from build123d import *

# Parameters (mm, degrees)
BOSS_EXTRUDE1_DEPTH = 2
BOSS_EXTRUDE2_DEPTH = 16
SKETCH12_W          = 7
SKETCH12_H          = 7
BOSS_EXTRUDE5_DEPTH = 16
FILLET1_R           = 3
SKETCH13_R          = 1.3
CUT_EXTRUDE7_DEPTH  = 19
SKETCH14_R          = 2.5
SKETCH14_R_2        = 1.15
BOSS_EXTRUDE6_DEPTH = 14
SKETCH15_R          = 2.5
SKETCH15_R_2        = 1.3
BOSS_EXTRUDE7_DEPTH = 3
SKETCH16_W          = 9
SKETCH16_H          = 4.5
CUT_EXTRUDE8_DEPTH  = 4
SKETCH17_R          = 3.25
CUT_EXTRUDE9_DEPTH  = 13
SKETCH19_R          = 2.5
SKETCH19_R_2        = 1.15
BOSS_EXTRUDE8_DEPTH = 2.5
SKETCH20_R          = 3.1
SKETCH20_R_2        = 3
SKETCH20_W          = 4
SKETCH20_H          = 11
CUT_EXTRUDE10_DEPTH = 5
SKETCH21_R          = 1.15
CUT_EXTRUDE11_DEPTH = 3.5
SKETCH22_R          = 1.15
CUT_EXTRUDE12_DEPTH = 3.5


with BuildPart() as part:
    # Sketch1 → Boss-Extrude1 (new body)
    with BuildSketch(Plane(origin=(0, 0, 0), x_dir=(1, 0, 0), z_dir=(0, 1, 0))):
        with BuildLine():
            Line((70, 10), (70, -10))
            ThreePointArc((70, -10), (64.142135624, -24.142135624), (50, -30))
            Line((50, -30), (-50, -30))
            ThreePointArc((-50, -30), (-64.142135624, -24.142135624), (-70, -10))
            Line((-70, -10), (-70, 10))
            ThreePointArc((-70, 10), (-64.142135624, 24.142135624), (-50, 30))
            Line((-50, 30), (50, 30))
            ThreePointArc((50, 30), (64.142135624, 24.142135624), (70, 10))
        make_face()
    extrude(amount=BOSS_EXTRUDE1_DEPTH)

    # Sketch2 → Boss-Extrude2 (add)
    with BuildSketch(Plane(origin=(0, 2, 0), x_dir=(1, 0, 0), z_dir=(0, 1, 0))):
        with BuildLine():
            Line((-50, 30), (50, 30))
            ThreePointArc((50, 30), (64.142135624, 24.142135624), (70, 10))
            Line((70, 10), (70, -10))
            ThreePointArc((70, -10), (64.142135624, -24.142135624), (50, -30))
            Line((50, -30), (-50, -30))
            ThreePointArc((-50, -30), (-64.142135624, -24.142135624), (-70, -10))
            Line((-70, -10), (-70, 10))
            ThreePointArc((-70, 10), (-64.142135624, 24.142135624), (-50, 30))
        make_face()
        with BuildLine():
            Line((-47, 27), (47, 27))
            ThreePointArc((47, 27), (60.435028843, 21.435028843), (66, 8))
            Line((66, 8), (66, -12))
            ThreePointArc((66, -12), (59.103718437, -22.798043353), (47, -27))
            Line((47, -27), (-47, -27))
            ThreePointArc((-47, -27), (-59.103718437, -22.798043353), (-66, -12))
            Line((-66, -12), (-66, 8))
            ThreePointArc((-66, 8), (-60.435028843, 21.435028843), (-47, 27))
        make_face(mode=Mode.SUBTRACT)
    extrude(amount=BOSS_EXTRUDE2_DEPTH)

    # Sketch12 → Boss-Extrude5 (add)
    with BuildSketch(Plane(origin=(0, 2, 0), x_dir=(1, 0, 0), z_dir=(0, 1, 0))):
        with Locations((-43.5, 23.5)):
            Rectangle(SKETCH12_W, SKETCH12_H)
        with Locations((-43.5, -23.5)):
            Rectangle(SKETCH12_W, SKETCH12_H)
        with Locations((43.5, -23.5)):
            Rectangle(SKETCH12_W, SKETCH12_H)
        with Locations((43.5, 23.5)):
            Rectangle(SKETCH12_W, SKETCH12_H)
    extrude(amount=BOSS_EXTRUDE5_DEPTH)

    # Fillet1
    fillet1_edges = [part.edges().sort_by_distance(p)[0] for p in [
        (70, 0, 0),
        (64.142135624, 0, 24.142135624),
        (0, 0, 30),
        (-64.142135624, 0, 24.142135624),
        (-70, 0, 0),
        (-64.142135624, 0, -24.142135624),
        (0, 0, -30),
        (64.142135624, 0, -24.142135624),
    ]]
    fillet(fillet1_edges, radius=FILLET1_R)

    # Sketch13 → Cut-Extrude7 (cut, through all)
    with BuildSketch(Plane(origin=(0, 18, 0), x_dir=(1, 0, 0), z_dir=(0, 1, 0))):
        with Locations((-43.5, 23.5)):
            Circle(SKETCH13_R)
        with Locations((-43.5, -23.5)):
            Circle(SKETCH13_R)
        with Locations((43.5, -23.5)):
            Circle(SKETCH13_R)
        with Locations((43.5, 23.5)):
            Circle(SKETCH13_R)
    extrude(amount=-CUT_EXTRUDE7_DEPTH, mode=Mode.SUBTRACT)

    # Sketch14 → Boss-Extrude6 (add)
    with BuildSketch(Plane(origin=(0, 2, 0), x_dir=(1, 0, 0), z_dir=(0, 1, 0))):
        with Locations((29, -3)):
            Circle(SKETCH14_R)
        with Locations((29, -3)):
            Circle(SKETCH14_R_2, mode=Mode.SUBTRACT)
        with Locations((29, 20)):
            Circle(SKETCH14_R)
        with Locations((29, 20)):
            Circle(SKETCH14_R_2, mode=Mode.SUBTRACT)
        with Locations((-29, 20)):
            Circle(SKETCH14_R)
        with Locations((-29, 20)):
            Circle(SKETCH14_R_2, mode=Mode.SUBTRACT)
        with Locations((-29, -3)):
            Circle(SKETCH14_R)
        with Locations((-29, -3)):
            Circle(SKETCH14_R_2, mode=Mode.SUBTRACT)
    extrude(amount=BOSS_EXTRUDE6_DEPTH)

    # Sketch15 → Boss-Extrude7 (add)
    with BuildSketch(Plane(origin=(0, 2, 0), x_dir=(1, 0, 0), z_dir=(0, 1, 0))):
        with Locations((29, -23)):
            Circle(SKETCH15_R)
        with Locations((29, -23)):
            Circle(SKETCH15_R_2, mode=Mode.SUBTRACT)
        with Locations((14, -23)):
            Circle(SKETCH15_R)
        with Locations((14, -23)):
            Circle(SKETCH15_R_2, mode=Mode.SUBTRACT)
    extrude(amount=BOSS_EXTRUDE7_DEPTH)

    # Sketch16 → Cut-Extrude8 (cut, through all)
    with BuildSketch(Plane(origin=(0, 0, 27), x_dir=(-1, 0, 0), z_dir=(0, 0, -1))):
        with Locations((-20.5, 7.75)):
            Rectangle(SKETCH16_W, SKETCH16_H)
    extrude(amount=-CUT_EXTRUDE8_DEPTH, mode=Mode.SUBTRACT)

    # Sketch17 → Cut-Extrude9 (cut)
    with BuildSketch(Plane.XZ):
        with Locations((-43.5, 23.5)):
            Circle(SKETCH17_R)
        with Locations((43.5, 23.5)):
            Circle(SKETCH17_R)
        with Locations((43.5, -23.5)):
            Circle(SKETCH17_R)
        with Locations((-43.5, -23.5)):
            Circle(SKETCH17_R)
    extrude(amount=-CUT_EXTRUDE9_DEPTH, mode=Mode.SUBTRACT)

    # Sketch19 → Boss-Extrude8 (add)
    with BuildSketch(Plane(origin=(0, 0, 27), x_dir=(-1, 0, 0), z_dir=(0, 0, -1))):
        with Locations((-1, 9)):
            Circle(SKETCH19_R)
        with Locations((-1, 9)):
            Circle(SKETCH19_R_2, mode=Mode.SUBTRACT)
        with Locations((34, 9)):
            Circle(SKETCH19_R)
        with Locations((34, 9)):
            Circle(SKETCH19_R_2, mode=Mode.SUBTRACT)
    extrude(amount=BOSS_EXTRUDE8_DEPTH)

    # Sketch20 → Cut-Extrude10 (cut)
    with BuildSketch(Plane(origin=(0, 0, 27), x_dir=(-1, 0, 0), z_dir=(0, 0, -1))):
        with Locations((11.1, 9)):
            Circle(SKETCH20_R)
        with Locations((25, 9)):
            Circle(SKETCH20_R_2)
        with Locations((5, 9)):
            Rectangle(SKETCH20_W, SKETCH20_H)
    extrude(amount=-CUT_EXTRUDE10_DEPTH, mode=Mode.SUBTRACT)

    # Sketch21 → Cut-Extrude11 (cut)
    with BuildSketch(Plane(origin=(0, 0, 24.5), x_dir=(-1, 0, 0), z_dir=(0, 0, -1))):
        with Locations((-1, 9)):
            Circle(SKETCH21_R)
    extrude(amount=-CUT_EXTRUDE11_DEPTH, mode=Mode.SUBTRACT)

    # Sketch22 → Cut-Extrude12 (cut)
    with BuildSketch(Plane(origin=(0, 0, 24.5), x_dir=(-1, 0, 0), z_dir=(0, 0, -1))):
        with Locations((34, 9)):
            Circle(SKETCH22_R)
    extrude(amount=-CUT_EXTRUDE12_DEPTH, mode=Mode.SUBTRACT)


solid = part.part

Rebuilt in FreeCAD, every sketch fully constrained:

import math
import FreeCAD as App
import Part
import Sketcher

V = App.Vector


def edges_at(feature, points):
    """Names of the edges that pass closest to the given points."""
    edges = feature.Shape.Edges
    near = lambda p: min(range(len(edges)), key=lambda i: edges[i].distToShape(Part.Vertex(*p))[0])
    return sorted({f"Edge{near(p) + 1}" for p in points})


def add_polygon(sketch, points):
    """Adds a closed chain of lines whose ends are joined by coincident constraints."""
    first, n = sketch.GeometryCount, len(points)
    for a, b in zip(points, points[1:] + points[:1]):
        sketch.addGeometry(Part.LineSegment(App.Vector(*a, 0), App.Vector(*b, 0)), False)
    for i in range(n):
        sketch.addConstraint(Sketcher.Constraint("Coincident", first + i, 2, first + (i + 1) % n, 1))

doc = App.newDocument("Part")
params = doc.addObject("Spreadsheet::Sheet", "Params")
for row, (alias, value) in enumerate([
    ("sketch1_radius", "20 mm"),
    ("sketch1_width", "100 mm"),
    ("sketch1_height", "20 mm"),
    ("pad1_length", "2 mm"),
    ("sketch2_radius", "20 mm"),
    ("sketch2_radius2", "19 mm"),
    ("sketch2_width", "100 mm"),
    ("sketch2_width2", "94 mm"),
    ("sketch2_height", "20 mm"),
    ("pad2_length", "16 mm"),
    ("sketch3_width", "7 mm"),
    ("pad3_length", "16 mm"),
    ("fillet_radius", "3 mm"),
    ("sketch4_diameter", "2.6 mm"),
    ("sketch5_diameter", "5 mm"),
    ("sketch5_diameter2", "2.3 mm"),
    ("pad4_length", "14 mm"),
    ("sketch6_diameter", "5 mm"),
    ("sketch6_diameter2", "2.6 mm"),
    ("pad5_length", "3 mm"),
    ("sketch7_width", "9 mm"),
    ("sketch7_height", "4.5 mm"),
    ("sketch8_diameter", "6.5 mm"),
    ("pocket3_length", "13 mm"),
    ("sketch9_diameter", "5 mm"),
    ("sketch9_diameter2", "2.3 mm"),
    ("pad6_length", "2.5 mm"),
    ("sketch10_diameter", "6 mm"),
    ("sketch10_diameter2", "6.2 mm"),
    ("sketch10_width", "4 mm"),
    ("sketch10_height", "11 mm"),
    ("pocket4_length", "5 mm"),
    ("sketch11_diameter", "2.3 mm"),
    ("pocket5_length", "3.5 mm"),
    ("sketch12_diameter", "2.3 mm"),
    ("pocket6_length", "3.5 mm"),
], start=1):
    params.set(f"A{row}", alias)
    params.set(f"B{row}", "=" + value)
    params.setAlias(f"B{row}", alias)

body = doc.addObject("PartDesign::Body", "Body")

sketch1 = body.newObject("Sketcher::SketchObject", "Sketch")
sketch1.AttachmentSupport = (doc.getObject("XZ_Plane"), [""])
sketch1.MapMode = "FlatFace"
sketch1.addGeometry(Part.LineSegment(V(70, 10, 0), V(70, -10, 0)), False)
sketch1.addGeometry(Part.ArcOfCircle(Part.Circle(V(50, -10, 0), V(0, 0, 1), 20), math.radians(-90), math.radians(0)), False)
sketch1.addGeometry(Part.LineSegment(V(50, -30, 0), V(-50, -30, 0)), False)
sketch1.addGeometry(Part.ArcOfCircle(Part.Circle(V(-50, -10, 0), V(0, 0, 1), 20), math.radians(180), math.radians(270)), False)
sketch1.addGeometry(Part.LineSegment(V(-70, -10, 0), V(-70, 10, 0)), False)
sketch1.addGeometry(Part.ArcOfCircle(Part.Circle(V(-50, 10, 0), V(0, 0, 1), 20), math.radians(90), math.radians(180)), False)
sketch1.addGeometry(Part.LineSegment(V(-50, 30, 0), V(50, 30, 0)), False)
sketch1.addGeometry(Part.ArcOfCircle(Part.Circle(V(50, 10, 0), V(0, 0, 1), 20), math.radians(0), math.radians(90)), False)
sketch1.addConstraint(Sketcher.Constraint("Tangent", 0, 2, 1, 2))
sketch1.addConstraint(Sketcher.Constraint("Tangent", 1, 1, 2, 1))
sketch1.addConstraint(Sketcher.Constraint("Tangent", 2, 2, 3, 2))
sketch1.addConstraint(Sketcher.Constraint("Tangent", 3, 1, 4, 1))
sketch1.addConstraint(Sketcher.Constraint("Tangent", 4, 2, 5, 2))
sketch1.addConstraint(Sketcher.Constraint("Tangent", 5, 1, 6, 1))
sketch1.addConstraint(Sketcher.Constraint("Tangent", 6, 2, 7, 2))
sketch1.addConstraint(Sketcher.Constraint("Tangent", 7, 1, 0, 1))
sketch1.addConstraint(Sketcher.Constraint("Vertical", 0))
sketch1.addConstraint(Sketcher.Constraint("Horizontal", 2))
sketch1.addConstraint(Sketcher.Constraint("Vertical", 4))
sketch1.addConstraint(Sketcher.Constraint("Horizontal", 6))
sketch1.addConstraint(Sketcher.Constraint("Equal", 1, 3))
sketch1.addConstraint(Sketcher.Constraint("Equal", 3, 5))
sketch1.addConstraint(Sketcher.Constraint("Equal", 5, 7))
sketch1.addConstraint(Sketcher.Constraint("Symmetric", 1, 3, 5, 3, -1, 1))
sketch1.addConstraint(Sketcher.Constraint("Radius", 1, 20.0))
sketch1.addConstraint(Sketcher.Constraint("DistanceX", 2, 2, 2, 1, 100.0))
sketch1.addConstraint(Sketcher.Constraint("DistanceY", 0, 2, 0, 1, 20.0))
sketch1.setExpression("Constraints[16]", "Params.sketch1_radius")
sketch1.setExpression("Constraints[17]", "Params.sketch1_width")
sketch1.setExpression("Constraints[18]", "Params.sketch1_height")
pad1 = body.newObject("PartDesign::Pad", "Pad")
pad1.Profile = sketch1
pad1.setExpression("Length", "Params.pad1_length")
pad1.Reversed = True

sketch2 = body.newObject("Sketcher::SketchObject", "Sketch001")
sketch2.AttachmentSupport = (doc.getObject("XZ_Plane"), [""])
sketch2.MapMode = "FlatFace"
sketch2.AttachmentOffset = App.Placement(V(0, 0, -2), App.Rotation())
sketch2.addGeometry(Part.LineSegment(V(50, -30, 0), V(-50, -30, 0)), False)
sketch2.addGeometry(Part.ArcOfCircle(Part.Circle(V(-50, -10, 0), V(0, 0, 1), 20), math.radians(180), math.radians(270)), False)
sketch2.addGeometry(Part.LineSegment(V(-70, -10, 0), V(-70, 10, 0)), False)
sketch2.addGeometry(Part.ArcOfCircle(Part.Circle(V(-50, 10, 0), V(0, 0, 1), 20), math.radians(90), math.radians(180)), False)
sketch2.addGeometry(Part.LineSegment(V(-50, 30, 0), V(50, 30, 0)), False)
sketch2.addGeometry(Part.ArcOfCircle(Part.Circle(V(50, 10, 0), V(0, 0, 1), 20), math.radians(0), math.radians(90)), False)
sketch2.addGeometry(Part.LineSegment(V(70, 10, 0), V(70, -10, 0)), False)
sketch2.addGeometry(Part.ArcOfCircle(Part.Circle(V(50, -10, 0), V(0, 0, 1), 20), math.radians(-90), math.radians(0)), False)
sketch2.addGeometry(Part.LineSegment(V(-47, -27, 0), V(47, -27, 0)), False)
sketch2.addGeometry(Part.ArcOfCircle(Part.Circle(V(47, -8, 0), V(0, 0, 1), 19), math.radians(-90), math.radians(0)), False)
sketch2.addGeometry(Part.LineSegment(V(66, -8, 0), V(66, 12, 0)), False)
sketch2.addGeometry(Part.ArcOfCircle(Part.Circle(V(47, 7.466667, 0), V(0, 0, 1), 19.533333), math.radians(13.419674), math.radians(90)), False)
sketch2.addGeometry(Part.LineSegment(V(47, 27, 0), V(-47, 27, 0)), False)
sketch2.addGeometry(Part.ArcOfCircle(Part.Circle(V(-47, 7.466667, 0), V(0, 0, 1), 19.533333), math.radians(90), math.radians(166.580326)), False)
sketch2.addGeometry(Part.LineSegment(V(-66, 12, 0), V(-66, -8, 0)), False)
sketch2.addGeometry(Part.ArcOfCircle(Part.Circle(V(-47, -8, 0), V(0, 0, 1), 19), math.radians(180), math.radians(270)), False)
sketch2.addConstraint(Sketcher.Constraint("Tangent", 0, 2, 1, 2))
sketch2.addConstraint(Sketcher.Constraint("Tangent", 1, 1, 2, 1))
sketch2.addConstraint(Sketcher.Constraint("Tangent", 2, 2, 3, 2))
sketch2.addConstraint(Sketcher.Constraint("Tangent", 3, 1, 4, 1))
sketch2.addConstraint(Sketcher.Constraint("Tangent", 4, 2, 5, 2))
sketch2.addConstraint(Sketcher.Constraint("Tangent", 5, 1, 6, 1))
sketch2.addConstraint(Sketcher.Constraint("Tangent", 6, 2, 7, 2))
sketch2.addConstraint(Sketcher.Constraint("Tangent", 7, 1, 0, 1))
sketch2.addConstraint(Sketcher.Constraint("Tangent", 8, 2, 9, 1))
sketch2.addConstraint(Sketcher.Constraint("Tangent", 9, 2, 10, 1))
sketch2.addConstraint(Sketcher.Constraint("Coincident", 10, 2, 11, 1))
sketch2.addConstraint(Sketcher.Constraint("Tangent", 11, 2, 12, 1))
sketch2.addConstraint(Sketcher.Constraint("Tangent", 12, 2, 13, 1))
sketch2.addConstraint(Sketcher.Constraint("Coincident", 13, 2, 14, 1))
sketch2.addConstraint(Sketcher.Constraint("Tangent", 14, 2, 15, 1))
sketch2.addConstraint(Sketcher.Constraint("Tangent", 15, 2, 8, 1))
sketch2.addConstraint(Sketcher.Constraint("Horizontal", 0))
sketch2.addConstraint(Sketcher.Constraint("Vertical", 2))
sketch2.addConstraint(Sketcher.Constraint("Horizontal", 4))
sketch2.addConstraint(Sketcher.Constraint("Vertical", 6))
sketch2.addConstraint(Sketcher.Constraint("Horizontal", 8))
sketch2.addConstraint(Sketcher.Constraint("Vertical", 10))
sketch2.addConstraint(Sketcher.Constraint("Horizontal", 12))
sketch2.addConstraint(Sketcher.Constraint("Vertical", 14))
sketch2.addConstraint(Sketcher.Constraint("Equal", 1, 3))
sketch2.addConstraint(Sketcher.Constraint("Equal", 3, 5))
sketch2.addConstraint(Sketcher.Constraint("Equal", 5, 7))
sketch2.addConstraint(Sketcher.Constraint("Equal", 11, 13))
sketch2.addConstraint(Sketcher.Constraint("Equal", 9, 15))
sketch2.addConstraint(Sketcher.Constraint("Symmetric", 1, 3, 5, 3, -1, 1))
sketch2.addConstraint(Sketcher.Constraint("Symmetric", 8, 2, 12, 2, -1, 1))
sketch2.addConstraint(Sketcher.Constraint("Symmetric", 10, 2, 13, 2, -2))
sketch2.addConstraint(Sketcher.Constraint("Equal", 6, 10))
sketch2.addConstraint(Sketcher.Constraint("Radius", 1, 20.0))
sketch2.addConstraint(Sketcher.Constraint("Radius", 9, 19.0))
sketch2.addConstraint(Sketcher.Constraint("DistanceX", 0, 2, 0, 1, 100.0))
sketch2.addConstraint(Sketcher.Constraint("DistanceX", 8, 1, 8, 2, 94.0))
sketch2.addConstraint(Sketcher.Constraint("DistanceY", 2, 1, 2, 2, 20.0))
sketch2.addConstraint(Sketcher.Constraint("DistanceY", 9, 3, -1, 1, 8.0))
sketch2.setExpression("Constraints[33]", "Params.sketch2_radius")
sketch2.setExpression("Constraints[34]", "Params.sketch2_radius2")
sketch2.setExpression("Constraints[35]", "Params.sketch2_width")
sketch2.setExpression("Constraints[36]", "Params.sketch2_width2")
sketch2.setExpression("Constraints[37]", "Params.sketch2_height")
pad2 = body.newObject("PartDesign::Pad", "Pad001")
pad2.Profile = sketch2
pad2.setExpression("Length", "Params.pad2_length")
pad2.Reversed = True

sketch3 = body.newObject("Sketcher::SketchObject", "Sketch002")
sketch3.AttachmentSupport = (doc.getObject("XZ_Plane"), [""])
sketch3.MapMode = "FlatFace"
sketch3.AttachmentOffset = App.Placement(V(0, 0, -2), App.Rotation())
add_polygon(sketch3, [(-47, -27), (-47, -20), (-40, -20), (-40, -27)])
add_polygon(sketch3, [(-47, 20), (-47, 27), (-40, 27), (-40, 20)])
add_polygon(sketch3, [(40, 20), (40, 27), (47, 27), (47, 20)])
add_polygon(sketch3, [(40, -27), (40, -20), (47, -20), (47, -27)])
sketch3.addConstraint(Sketcher.Constraint("Vertical", 0))
sketch3.addConstraint(Sketcher.Constraint("Horizontal", 1))
sketch3.addConstraint(Sketcher.Constraint("Vertical", 2))
sketch3.addConstraint(Sketcher.Constraint("Horizontal", 3))
sketch3.addConstraint(Sketcher.Constraint("Vertical", 4))
sketch3.addConstraint(Sketcher.Constraint("Horizontal", 5))
sketch3.addConstraint(Sketcher.Constraint("Vertical", 6))
sketch3.addConstraint(Sketcher.Constraint("Horizontal", 7))
sketch3.addConstraint(Sketcher.Constraint("Vertical", 8))
sketch3.addConstraint(Sketcher.Constraint("Horizontal", 9))
sketch3.addConstraint(Sketcher.Constraint("Vertical", 10))
sketch3.addConstraint(Sketcher.Constraint("Horizontal", 11))
sketch3.addConstraint(Sketcher.Constraint("Vertical", 12))
sketch3.addConstraint(Sketcher.Constraint("Horizontal", 13))
sketch3.addConstraint(Sketcher.Constraint("Vertical", 14))
sketch3.addConstraint(Sketcher.Constraint("Horizontal", 15))
sketch3.addConstraint(Sketcher.Constraint("Symmetric", 2, 2, 8, 2, -1, 1))
sketch3.addConstraint(Sketcher.Constraint("Symmetric", 0, 2, 10, 2, -1, 1))
sketch3.addConstraint(Sketcher.Constraint("Symmetric", 6, 2, 12, 2, -1, 1))
sketch3.addConstraint(Sketcher.Constraint("Symmetric", 4, 2, 14, 2, -1, 1))
sketch3.addConstraint(Sketcher.Constraint("Symmetric", 5, 2, 8, 2, -2))
sketch3.addConstraint(Sketcher.Constraint("Symmetric", 7, 2, 10, 2, -2))
sketch3.addConstraint(Sketcher.Constraint("Equal", 15, 0))
sketch3.addConstraint(Sketcher.Constraint("DistanceX", 1, 1, 1, 2, 7.0))
sketch3.addConstraint(Sketcher.Constraint("DistanceX", 0, 2, -1, 1, 47.0))
sketch3.addConstraint(Sketcher.Constraint("DistanceY", 0, 2, -1, 1, 20.0))
sketch3.setExpression("Constraints[39]", "Params.sketch3_width")
pad3 = body.newObject("PartDesign::Pad", "Pad002")
pad3.Profile = sketch3
pad3.setExpression("Length", "Params.pad3_length")
pad3.Reversed = True
doc.recompute()

fillet = body.newObject("PartDesign::Fillet", "Fillet")
fillet.Base = (pad3, edges_at(pad3, [
    (70, 0, 0),
    (64.142, 0, 24.142),
    (0, 0, 30),
    (-64.142, 0, 24.142),
    (-70, 0, 0),
    (-64.142, 0, -24.142),
    (0, 0, -30),
    (64.142, 0, -24.142),
]))
fillet.setExpression("Radius", "Params.fillet_radius")

sketch4 = body.newObject("Sketcher::SketchObject", "Sketch003")
sketch4.AttachmentSupport = (doc.getObject("XZ_Plane"), [""])
sketch4.MapMode = "FlatFace"
sketch4.AttachmentOffset = App.Placement(V(0, 0, -18), App.Rotation())
sketch4.addGeometry(Part.Circle(V(-43.5, -23.5, 0), V(0, 0, 1), 1.3), False)
sketch4.addGeometry(Part.Circle(V(-43.5, 23.5, 0), V(0, 0, 1), 1.3), False)
sketch4.addGeometry(Part.Circle(V(43.5, 23.5, 0), V(0, 0, 1), 1.3), False)
sketch4.addGeometry(Part.Circle(V(43.5, -23.5, 0), V(0, 0, 1), 1.3), False)
sketch4.addConstraint(Sketcher.Constraint("Equal", 0, 1))
sketch4.addConstraint(Sketcher.Constraint("Equal", 1, 2))
sketch4.addConstraint(Sketcher.Constraint("Equal", 2, 3))
sketch4.addConstraint(Sketcher.Constraint("Symmetric", 0, 3, 2, 3, -1, 1))
sketch4.addConstraint(Sketcher.Constraint("Symmetric", 1, 3, 3, 3, -1, 1))
sketch4.addConstraint(Sketcher.Constraint("Symmetric", 1, 3, 2, 3, -2))
sketch4.addConstraint(Sketcher.Constraint("Diameter", 0, 2.6))
sketch4.addConstraint(Sketcher.Constraint("DistanceY", 0, 3, 1, 3, 47.0))
sketch4.addConstraint(Sketcher.Constraint("DistanceX", 1, 3, 2, 3, 87.0))
sketch4.setExpression("Constraints[6]", "Params.sketch4_diameter")
pocket1 = body.newObject("PartDesign::Pocket", "Pocket")
pocket1.Profile = sketch4
pocket1.Type = "ThroughAll"
pocket1.Reversed = True

sketch5 = body.newObject("Sketcher::SketchObject", "Sketch004")
sketch5.AttachmentSupport = (doc.getObject("XZ_Plane"), [""])
sketch5.MapMode = "FlatFace"
sketch5.AttachmentOffset = App.Placement(V(0, 0, -2), App.Rotation())
sketch5.addGeometry(Part.Circle(V(29, 3, 0), V(0, 0, 1), 2.5), False)
sketch5.addGeometry(Part.Circle(V(29, 3, 0), V(0, 0, 1), 1.15), False)
sketch5.addGeometry(Part.Circle(V(29, -20, 0), V(0, 0, 1), 2.5), False)
sketch5.addGeometry(Part.Circle(V(29, -20, 0), V(0, 0, 1), 1.15), False)
sketch5.addGeometry(Part.Circle(V(-29, -20, 0), V(0, 0, 1), 2.5), False)
sketch5.addGeometry(Part.Circle(V(-29, -20, 0), V(0, 0, 1), 1.15), False)
sketch5.addGeometry(Part.Circle(V(-29, 3, 0), V(0, 0, 1), 2.5), False)
sketch5.addGeometry(Part.Circle(V(-29, 3, 0), V(0, 0, 1), 1.15), False)
sketch5.addConstraint(Sketcher.Constraint("Coincident", 1, 3, 0, 3))
sketch5.addConstraint(Sketcher.Constraint("Coincident", 3, 3, 2, 3))
sketch5.addConstraint(Sketcher.Constraint("Coincident", 5, 3, 4, 3))
sketch5.addConstraint(Sketcher.Constraint("Coincident", 7, 3, 6, 3))
sketch5.addConstraint(Sketcher.Constraint("Equal", 0, 2))
sketch5.addConstraint(Sketcher.Constraint("Equal", 1, 3))
sketch5.addConstraint(Sketcher.Constraint("Equal", 2, 4))
sketch5.addConstraint(Sketcher.Constraint("Equal", 3, 5))
sketch5.addConstraint(Sketcher.Constraint("Equal", 4, 6))
sketch5.addConstraint(Sketcher.Constraint("Equal", 5, 7))
sketch5.addConstraint(Sketcher.Constraint("Symmetric", 2, 3, 4, 3, -2))
sketch5.addConstraint(Sketcher.Constraint("Symmetric", 0, 3, 6, 3, -2))
sketch5.addConstraint(Sketcher.Constraint("Vertical", 1, 3, 2, 3))
sketch5.addConstraint(Sketcher.Constraint("Diameter", 0, 5.0))
sketch5.addConstraint(Sketcher.Constraint("Diameter", 1, 2.3))
sketch5.addConstraint(Sketcher.Constraint("DistanceX", -1, 1, 0, 3, 29.0))
sketch5.addConstraint(Sketcher.Constraint("DistanceY", -1, 1, 0, 3, 3.0))
sketch5.addConstraint(Sketcher.Constraint("DistanceY", 2, 3, -1, 1, 20.0))
sketch5.setExpression("Constraints[13]", "Params.sketch5_diameter")
sketch5.setExpression("Constraints[14]", "Params.sketch5_diameter2")
pad4 = body.newObject("PartDesign::Pad", "Pad003")
pad4.Profile = sketch5
pad4.setExpression("Length", "Params.pad4_length")
pad4.Reversed = True

sketch6 = body.newObject("Sketcher::SketchObject", "Sketch005")
sketch6.AttachmentSupport = (doc.getObject("XZ_Plane"), [""])
sketch6.MapMode = "FlatFace"
sketch6.AttachmentOffset = App.Placement(V(0, 0, -2), App.Rotation())
sketch6.addGeometry(Part.Circle(V(29, 23, 0), V(0, 0, 1), 2.5), False)
sketch6.addGeometry(Part.Circle(V(29, 23, 0), V(0, 0, 1), 1.3), False)
sketch6.addGeometry(Part.Circle(V(14, 23, 0), V(0, 0, 1), 2.5), False)
sketch6.addGeometry(Part.Circle(V(14, 23, 0), V(0, 0, 1), 1.3), False)
sketch6.addConstraint(Sketcher.Constraint("Coincident", 1, 3, 0, 3))
sketch6.addConstraint(Sketcher.Constraint("Coincident", 3, 3, 2, 3))
sketch6.addConstraint(Sketcher.Constraint("Equal", 0, 2))
sketch6.addConstraint(Sketcher.Constraint("Equal", 1, 3))
sketch6.addConstraint(Sketcher.Constraint("Horizontal", 1, 3, 2, 3))
sketch6.addConstraint(Sketcher.Constraint("Diameter", 0, 5.0))
sketch6.addConstraint(Sketcher.Constraint("Diameter", 1, 2.6))
sketch6.addConstraint(Sketcher.Constraint("DistanceX", -1, 1, 0, 3, 29.0))
sketch6.addConstraint(Sketcher.Constraint("DistanceY", -1, 1, 0, 3, 23.0))
sketch6.addConstraint(Sketcher.Constraint("DistanceX", -1, 1, 2, 3, 14.0))
sketch6.setExpression("Constraints[5]", "Params.sketch6_diameter")
sketch6.setExpression("Constraints[6]", "Params.sketch6_diameter2")
pad5 = body.newObject("PartDesign::Pad", "Pad004")
pad5.Profile = sketch6
pad5.setExpression("Length", "Params.pad5_length")
pad5.Reversed = True

sketch7 = body.newObject("Sketcher::SketchObject", "Sketch006")
sketch7.AttachmentSupport = (doc.getObject("XY_Plane"), [""])
sketch7.MapMode = "FlatFace"
sketch7.AttachmentOffset = App.Placement(V(0, 0, 27), App.Rotation())
add_polygon(sketch7, [(25, 10), (25, 5.5), (16, 5.5), (16, 10)])
sketch7.addConstraint(Sketcher.Constraint("Vertical", 0))
sketch7.addConstraint(Sketcher.Constraint("Horizontal", 1))
sketch7.addConstraint(Sketcher.Constraint("Vertical", 2))
sketch7.addConstraint(Sketcher.Constraint("Horizontal", 3))
sketch7.addConstraint(Sketcher.Constraint("DistanceX", 1, 2, 1, 1, 9.0))
sketch7.addConstraint(Sketcher.Constraint("DistanceY", 0, 2, 0, 1, 4.5))
sketch7.addConstraint(Sketcher.Constraint("DistanceX", -1, 1, 0, 2, 25.0))
sketch7.addConstraint(Sketcher.Constraint("DistanceY", -1, 1, 2, 2, 10.0))
sketch7.setExpression("Constraints[8]", "Params.sketch7_width")
sketch7.setExpression("Constraints[9]", "Params.sketch7_height")
pocket2 = body.newObject("PartDesign::Pocket", "Pocket001")
pocket2.Profile = sketch7
pocket2.Type = "ThroughAll"
pocket2.Reversed = True

sketch8 = body.newObject("Sketcher::SketchObject", "Sketch007")
sketch8.AttachmentSupport = (doc.getObject("XZ_Plane"), [""])
sketch8.MapMode = "FlatFace"
sketch8.addGeometry(Part.Circle(V(-43.5, 23.5, 0), V(0, 0, 1), 3.25), False)
sketch8.addGeometry(Part.Circle(V(43.5, 23.5, 0), V(0, 0, 1), 3.25), False)
sketch8.addGeometry(Part.Circle(V(43.5, -23.5, 0), V(0, 0, 1), 3.25), False)
sketch8.addGeometry(Part.Circle(V(-43.5, -23.5, 0), V(0, 0, 1), 3.25), False)
sketch8.addConstraint(Sketcher.Constraint("Equal", 0, 1))
sketch8.addConstraint(Sketcher.Constraint("Equal", 1, 2))
sketch8.addConstraint(Sketcher.Constraint("Equal", 2, 3))
sketch8.addConstraint(Sketcher.Constraint("Symmetric", 0, 3, 2, 3, -1, 1))
sketch8.addConstraint(Sketcher.Constraint("Symmetric", 1, 3, 3, 3, -1, 1))
sketch8.addConstraint(Sketcher.Constraint("Symmetric", 0, 3, 1, 3, -2))
sketch8.addConstraint(Sketcher.Constraint("Diameter", 0, 6.5))
sketch8.addConstraint(Sketcher.Constraint("DistanceX", 0, 3, 1, 3, 87.0))
sketch8.addConstraint(Sketcher.Constraint("DistanceY", 2, 3, 1, 3, 47.0))
sketch8.setExpression("Constraints[6]", "Params.sketch8_diameter")
pocket3 = body.newObject("PartDesign::Pocket", "Pocket002")
pocket3.Profile = sketch8
pocket3.setExpression("Length", "Params.pocket3_length")

sketch9 = body.newObject("Sketcher::SketchObject", "Sketch008")
sketch9.AttachmentSupport = (doc.getObject("XY_Plane"), [""])
sketch9.MapMode = "FlatFace"
sketch9.AttachmentOffset = App.Placement(V(0, 0, 27), App.Rotation())
sketch9.addGeometry(Part.Circle(V(1, 9, 0), V(0, 0, 1), 2.5), False)
sketch9.addGeometry(Part.Circle(V(1, 9, 0), V(0, 0, 1), 1.15), False)
sketch9.addGeometry(Part.Circle(V(-34, 9, 0), V(0, 0, 1), 2.5), False)
sketch9.addGeometry(Part.Circle(V(-34, 9, 0), V(0, 0, 1), 1.15), False)
sketch9.addConstraint(Sketcher.Constraint("Coincident", 1, 3, 0, 3))
sketch9.addConstraint(Sketcher.Constraint("Coincident", 3, 3, 2, 3))
sketch9.addConstraint(Sketcher.Constraint("Equal", 0, 2))
sketch9.addConstraint(Sketcher.Constraint("Equal", 1, 3))
sketch9.addConstraint(Sketcher.Constraint("Horizontal", 1, 3, 2, 3))
sketch9.addConstraint(Sketcher.Constraint("Diameter", 0, 5.0))
sketch9.addConstraint(Sketcher.Constraint("Diameter", 1, 2.3))
sketch9.addConstraint(Sketcher.Constraint("DistanceX", -1, 1, 0, 3, 1.0))
sketch9.addConstraint(Sketcher.Constraint("DistanceY", -1, 1, 0, 3, 9.0))
sketch9.addConstraint(Sketcher.Constraint("DistanceX", 2, 3, -1, 1, 34.0))
sketch9.setExpression("Constraints[5]", "Params.sketch9_diameter")
sketch9.setExpression("Constraints[6]", "Params.sketch9_diameter2")
pad6 = body.newObject("PartDesign::Pad", "Pad005")
pad6.Profile = sketch9
pad6.setExpression("Length", "Params.pad6_length")
pad6.Reversed = True

sketch10 = body.newObject("Sketcher::SketchObject", "Sketch009")
sketch10.AttachmentSupport = (doc.getObject("XY_Plane"), [""])
sketch10.MapMode = "FlatFace"
sketch10.AttachmentOffset = App.Placement(V(0, 0, 27), App.Rotation())
sketch10.addGeometry(Part.Circle(V(-11.1, 9, 0), V(0, 0, 1), 3.1), False)
sketch10.addGeometry(Part.Circle(V(-25, 9, 0), V(0, 0, 1), 3), False)
add_polygon(sketch10, [(-3, 14.5), (-3, 3.5), (-7, 3.5), (-7, 14.5)])
sketch10.addConstraint(Sketcher.Constraint("Vertical", 2))
sketch10.addConstraint(Sketcher.Constraint("Horizontal", 3))
sketch10.addConstraint(Sketcher.Constraint("Vertical", 4))
sketch10.addConstraint(Sketcher.Constraint("Horizontal", 5))
sketch10.addConstraint(Sketcher.Constraint("Horizontal", 0, 3, 1, 3))
sketch10.addConstraint(Sketcher.Constraint("Diameter", 1, 6.0))
sketch10.addConstraint(Sketcher.Constraint("Diameter", 0, 6.2))
sketch10.addConstraint(Sketcher.Constraint("DistanceX", 3, 2, 3, 1, 4.0))
sketch10.addConstraint(Sketcher.Constraint("DistanceY", 2, 2, 2, 1, 11.0))
sketch10.addConstraint(Sketcher.Constraint("DistanceY", -1, 1, 0, 3, 9.0))
sketch10.addConstraint(Sketcher.Constraint("DistanceX", 1, 3, -1, 1, 25.0))
sketch10.addConstraint(Sketcher.Constraint("DistanceX", 2, 2, -1, 1, 3.0))
sketch10.addConstraint(Sketcher.Constraint("DistanceX", 0, 3, -1, 1, 11.1))
sketch10.addConstraint(Sketcher.Constraint("DistanceY", -1, 1, 2, 2, 3.5))
sketch10.setExpression("Constraints[9]", "Params.sketch10_diameter")
sketch10.setExpression("Constraints[10]", "Params.sketch10_diameter2")
sketch10.setExpression("Constraints[11]", "Params.sketch10_width")
sketch10.setExpression("Constraints[12]", "Params.sketch10_height")
pocket4 = body.newObject("PartDesign::Pocket", "Pocket003")
pocket4.Profile = sketch10
pocket4.setExpression("Length", "Params.pocket4_length")
pocket4.Reversed = True

sketch11 = body.newObject("Sketcher::SketchObject", "Sketch010")
sketch11.AttachmentSupport = (doc.getObject("XY_Plane"), [""])
sketch11.MapMode = "FlatFace"
sketch11.AttachmentOffset = App.Placement(V(0, 0, 24.5), App.Rotation())
sketch11.addGeometry(Part.Circle(V(1, 9, 0), V(0, 0, 1), 1.15), False)
sketch11.addConstraint(Sketcher.Constraint("Diameter", 0, 2.3))
sketch11.addConstraint(Sketcher.Constraint("DistanceX", -1, 1, 0, 3, 1.0))
sketch11.addConstraint(Sketcher.Constraint("DistanceY", -1, 1, 0, 3, 9.0))
sketch11.setExpression("Constraints[0]", "Params.sketch11_diameter")
pocket5 = body.newObject("PartDesign::Pocket", "Pocket004")
pocket5.Profile = sketch11
pocket5.setExpression("Length", "Params.pocket5_length")
pocket5.Reversed = True

sketch12 = body.newObject("Sketcher::SketchObject", "Sketch011")
sketch12.AttachmentSupport = (doc.getObject("XY_Plane"), [""])
sketch12.MapMode = "FlatFace"
sketch12.AttachmentOffset = App.Placement(V(0, 0, 24.5), App.Rotation())
sketch12.addGeometry(Part.Circle(V(-34, 9, 0), V(0, 0, 1), 1.15), False)
sketch12.addConstraint(Sketcher.Constraint("Diameter", 0, 2.3))
sketch12.addConstraint(Sketcher.Constraint("DistanceX", 0, 3, -1, 1, 34.0))
sketch12.addConstraint(Sketcher.Constraint("DistanceY", -1, 1, 0, 3, 9.0))
sketch12.setExpression("Constraints[0]", "Params.sketch12_diameter")
pocket6 = body.newObject("PartDesign::Pocket", "Pocket005")
pocket6.Profile = sketch12
pocket6.setExpression("Length", "Params.pocket6_length")
pocket6.Reversed = True

doc.recompute()
